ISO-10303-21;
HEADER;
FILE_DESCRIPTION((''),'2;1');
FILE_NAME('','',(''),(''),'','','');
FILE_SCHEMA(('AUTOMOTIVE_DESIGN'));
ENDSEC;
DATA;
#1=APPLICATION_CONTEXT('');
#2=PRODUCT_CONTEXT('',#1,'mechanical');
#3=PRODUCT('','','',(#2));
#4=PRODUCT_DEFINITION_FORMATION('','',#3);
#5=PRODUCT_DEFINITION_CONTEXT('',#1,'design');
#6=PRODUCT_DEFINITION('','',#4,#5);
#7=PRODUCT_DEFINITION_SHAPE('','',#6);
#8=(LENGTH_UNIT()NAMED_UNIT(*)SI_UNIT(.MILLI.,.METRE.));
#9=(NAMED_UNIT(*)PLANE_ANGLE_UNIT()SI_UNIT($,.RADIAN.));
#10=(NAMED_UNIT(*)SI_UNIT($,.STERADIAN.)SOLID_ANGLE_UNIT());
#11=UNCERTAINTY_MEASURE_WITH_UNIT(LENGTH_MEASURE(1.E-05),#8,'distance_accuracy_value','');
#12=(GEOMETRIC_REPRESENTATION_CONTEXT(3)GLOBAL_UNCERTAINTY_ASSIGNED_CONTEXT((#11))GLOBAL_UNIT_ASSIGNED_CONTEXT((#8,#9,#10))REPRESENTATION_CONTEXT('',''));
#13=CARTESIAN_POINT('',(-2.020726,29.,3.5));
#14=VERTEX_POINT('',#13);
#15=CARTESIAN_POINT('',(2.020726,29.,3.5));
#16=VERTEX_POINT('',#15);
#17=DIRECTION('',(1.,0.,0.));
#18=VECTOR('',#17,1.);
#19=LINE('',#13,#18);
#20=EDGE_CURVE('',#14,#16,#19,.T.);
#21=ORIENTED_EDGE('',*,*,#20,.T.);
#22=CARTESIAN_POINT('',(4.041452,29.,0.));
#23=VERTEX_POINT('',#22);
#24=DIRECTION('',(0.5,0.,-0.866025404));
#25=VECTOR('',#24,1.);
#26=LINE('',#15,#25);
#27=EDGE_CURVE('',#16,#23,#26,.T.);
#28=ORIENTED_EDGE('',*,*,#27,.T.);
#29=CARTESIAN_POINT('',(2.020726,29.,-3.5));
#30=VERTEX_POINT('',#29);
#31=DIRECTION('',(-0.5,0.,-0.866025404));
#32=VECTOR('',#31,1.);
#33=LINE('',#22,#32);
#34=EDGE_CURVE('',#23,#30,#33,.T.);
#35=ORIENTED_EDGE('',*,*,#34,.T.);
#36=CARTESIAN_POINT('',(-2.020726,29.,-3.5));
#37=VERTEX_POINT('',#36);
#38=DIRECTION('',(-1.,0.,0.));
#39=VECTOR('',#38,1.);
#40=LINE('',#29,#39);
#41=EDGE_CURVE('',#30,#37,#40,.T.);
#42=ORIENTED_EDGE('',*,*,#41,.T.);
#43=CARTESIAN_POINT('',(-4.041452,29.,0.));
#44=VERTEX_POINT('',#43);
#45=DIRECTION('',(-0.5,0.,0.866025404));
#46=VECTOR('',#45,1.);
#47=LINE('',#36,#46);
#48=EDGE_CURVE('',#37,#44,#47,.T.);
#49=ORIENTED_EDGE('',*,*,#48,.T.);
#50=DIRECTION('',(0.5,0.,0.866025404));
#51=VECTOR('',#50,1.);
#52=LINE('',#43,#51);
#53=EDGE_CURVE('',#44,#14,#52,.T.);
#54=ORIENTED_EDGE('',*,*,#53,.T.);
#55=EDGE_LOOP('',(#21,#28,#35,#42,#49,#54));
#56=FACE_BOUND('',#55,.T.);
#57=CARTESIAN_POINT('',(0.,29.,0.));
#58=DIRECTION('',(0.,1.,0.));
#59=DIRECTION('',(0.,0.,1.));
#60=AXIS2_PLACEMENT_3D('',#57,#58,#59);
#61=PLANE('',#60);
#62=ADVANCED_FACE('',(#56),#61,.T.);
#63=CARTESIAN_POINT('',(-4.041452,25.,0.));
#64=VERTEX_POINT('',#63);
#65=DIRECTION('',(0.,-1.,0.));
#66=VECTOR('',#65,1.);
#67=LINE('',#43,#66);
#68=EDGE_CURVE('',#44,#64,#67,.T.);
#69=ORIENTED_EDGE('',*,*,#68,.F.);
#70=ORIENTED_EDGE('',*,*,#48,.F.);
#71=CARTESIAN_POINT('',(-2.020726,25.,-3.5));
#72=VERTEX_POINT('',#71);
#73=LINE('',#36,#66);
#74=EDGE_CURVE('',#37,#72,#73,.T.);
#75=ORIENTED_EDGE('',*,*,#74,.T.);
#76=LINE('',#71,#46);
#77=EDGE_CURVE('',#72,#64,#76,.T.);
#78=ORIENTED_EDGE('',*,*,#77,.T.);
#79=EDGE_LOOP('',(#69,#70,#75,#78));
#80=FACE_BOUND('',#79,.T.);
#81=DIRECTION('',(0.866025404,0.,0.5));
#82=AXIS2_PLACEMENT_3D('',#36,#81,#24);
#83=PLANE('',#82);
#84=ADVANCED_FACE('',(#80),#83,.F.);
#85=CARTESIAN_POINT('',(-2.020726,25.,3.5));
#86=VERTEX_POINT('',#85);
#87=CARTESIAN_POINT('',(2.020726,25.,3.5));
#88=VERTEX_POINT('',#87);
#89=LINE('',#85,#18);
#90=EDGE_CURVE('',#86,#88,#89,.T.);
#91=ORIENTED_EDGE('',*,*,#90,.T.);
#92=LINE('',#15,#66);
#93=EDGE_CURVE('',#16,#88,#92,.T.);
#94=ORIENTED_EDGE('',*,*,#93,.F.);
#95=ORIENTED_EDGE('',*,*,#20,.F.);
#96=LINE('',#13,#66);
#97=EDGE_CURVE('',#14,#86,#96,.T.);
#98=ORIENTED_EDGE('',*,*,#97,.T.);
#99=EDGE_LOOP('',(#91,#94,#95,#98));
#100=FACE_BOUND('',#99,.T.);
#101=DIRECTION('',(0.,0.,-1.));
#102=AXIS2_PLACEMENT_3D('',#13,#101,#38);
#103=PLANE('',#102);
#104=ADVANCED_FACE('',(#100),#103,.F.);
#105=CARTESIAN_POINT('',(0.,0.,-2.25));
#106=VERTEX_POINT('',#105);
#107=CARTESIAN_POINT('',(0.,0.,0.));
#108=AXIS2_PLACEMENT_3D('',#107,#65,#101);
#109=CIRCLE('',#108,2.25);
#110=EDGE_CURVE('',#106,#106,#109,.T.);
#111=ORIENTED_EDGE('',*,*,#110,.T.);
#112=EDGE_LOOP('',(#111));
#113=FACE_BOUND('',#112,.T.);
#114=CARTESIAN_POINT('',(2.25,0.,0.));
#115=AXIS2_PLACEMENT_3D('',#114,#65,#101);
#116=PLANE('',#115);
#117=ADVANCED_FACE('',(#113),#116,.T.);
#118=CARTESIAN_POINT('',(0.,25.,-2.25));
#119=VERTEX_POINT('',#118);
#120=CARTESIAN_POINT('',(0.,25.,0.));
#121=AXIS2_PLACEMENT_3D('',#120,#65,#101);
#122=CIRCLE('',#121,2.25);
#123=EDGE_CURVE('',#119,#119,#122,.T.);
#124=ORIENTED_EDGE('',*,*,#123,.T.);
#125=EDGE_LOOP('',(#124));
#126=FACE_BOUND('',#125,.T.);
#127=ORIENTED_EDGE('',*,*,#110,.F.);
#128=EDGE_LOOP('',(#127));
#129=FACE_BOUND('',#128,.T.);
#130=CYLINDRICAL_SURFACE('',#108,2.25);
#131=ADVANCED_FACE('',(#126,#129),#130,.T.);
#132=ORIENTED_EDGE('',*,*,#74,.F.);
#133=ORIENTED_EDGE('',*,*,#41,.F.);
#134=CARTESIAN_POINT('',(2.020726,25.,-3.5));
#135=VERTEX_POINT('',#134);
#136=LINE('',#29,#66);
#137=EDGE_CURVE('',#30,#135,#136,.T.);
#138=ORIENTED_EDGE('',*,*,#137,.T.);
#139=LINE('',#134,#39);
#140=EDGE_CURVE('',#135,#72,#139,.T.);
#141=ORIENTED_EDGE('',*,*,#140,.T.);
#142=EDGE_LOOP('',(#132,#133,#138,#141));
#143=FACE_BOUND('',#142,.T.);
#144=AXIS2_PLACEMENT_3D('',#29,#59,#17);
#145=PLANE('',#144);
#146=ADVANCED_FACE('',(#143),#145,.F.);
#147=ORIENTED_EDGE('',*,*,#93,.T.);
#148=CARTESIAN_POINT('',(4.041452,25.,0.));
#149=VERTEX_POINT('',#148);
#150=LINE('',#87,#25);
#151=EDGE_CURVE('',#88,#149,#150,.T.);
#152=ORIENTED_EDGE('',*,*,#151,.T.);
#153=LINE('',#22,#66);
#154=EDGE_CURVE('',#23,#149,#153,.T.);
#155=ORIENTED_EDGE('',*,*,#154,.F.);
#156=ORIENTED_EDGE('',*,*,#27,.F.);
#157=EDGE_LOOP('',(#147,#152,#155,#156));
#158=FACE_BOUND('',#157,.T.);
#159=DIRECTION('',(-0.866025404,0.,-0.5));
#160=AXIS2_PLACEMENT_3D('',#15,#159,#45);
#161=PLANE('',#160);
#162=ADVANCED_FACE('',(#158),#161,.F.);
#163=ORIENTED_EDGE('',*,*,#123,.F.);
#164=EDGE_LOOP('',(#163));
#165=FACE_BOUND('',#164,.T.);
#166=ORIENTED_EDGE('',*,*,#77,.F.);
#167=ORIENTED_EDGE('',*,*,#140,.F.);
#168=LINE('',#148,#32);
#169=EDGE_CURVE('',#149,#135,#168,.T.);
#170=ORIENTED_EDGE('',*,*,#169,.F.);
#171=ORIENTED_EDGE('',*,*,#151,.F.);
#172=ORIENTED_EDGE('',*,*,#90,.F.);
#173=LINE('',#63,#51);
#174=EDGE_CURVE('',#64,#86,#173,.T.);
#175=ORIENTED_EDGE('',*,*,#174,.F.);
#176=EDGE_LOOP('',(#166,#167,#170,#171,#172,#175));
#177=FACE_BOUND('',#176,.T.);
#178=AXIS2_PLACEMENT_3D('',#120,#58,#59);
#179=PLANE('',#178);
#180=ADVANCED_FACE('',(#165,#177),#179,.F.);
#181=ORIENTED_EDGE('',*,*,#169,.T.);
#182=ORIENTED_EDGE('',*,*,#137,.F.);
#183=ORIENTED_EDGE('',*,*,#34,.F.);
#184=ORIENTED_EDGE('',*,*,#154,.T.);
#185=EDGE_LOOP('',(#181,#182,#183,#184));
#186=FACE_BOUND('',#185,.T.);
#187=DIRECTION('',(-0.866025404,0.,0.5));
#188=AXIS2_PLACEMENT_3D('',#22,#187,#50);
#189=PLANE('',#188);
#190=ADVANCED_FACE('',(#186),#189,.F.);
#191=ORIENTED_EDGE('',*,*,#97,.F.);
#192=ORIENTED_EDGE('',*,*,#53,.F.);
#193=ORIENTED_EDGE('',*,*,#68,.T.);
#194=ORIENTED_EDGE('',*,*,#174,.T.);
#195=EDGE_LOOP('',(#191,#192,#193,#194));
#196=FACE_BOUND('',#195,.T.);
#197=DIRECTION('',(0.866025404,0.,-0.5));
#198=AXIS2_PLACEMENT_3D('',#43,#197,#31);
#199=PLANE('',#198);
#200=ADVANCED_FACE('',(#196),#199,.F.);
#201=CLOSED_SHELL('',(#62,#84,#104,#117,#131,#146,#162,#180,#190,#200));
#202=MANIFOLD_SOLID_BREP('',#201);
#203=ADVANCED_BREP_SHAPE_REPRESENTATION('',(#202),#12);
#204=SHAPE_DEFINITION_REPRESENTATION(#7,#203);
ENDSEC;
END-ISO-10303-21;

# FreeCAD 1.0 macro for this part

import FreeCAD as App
import Part
import Sketcher
from FreeCAD import Vector
Q = App.Units.Quantity


def add_polygon(sketch, points):
    """Adds a closed chain of lines whose ends are joined by coincident constraints."""
    first, n = sketch.GeometryCount, len(points)
    for a, b in zip(points, points[1:] + points[:1]):
        sketch.addGeometry(Part.LineSegment(App.Vector(*a, 0), App.Vector(*b, 0)), False)
    for i in range(n):
        sketch.addConstraint(Sketcher.Constraint("Coincident", first + i, 2, first + (i + 1) % n, 1))

doc = App.newDocument("Part")
body = doc.addObject("PartDesign::Body", "Body")

sketch1 = body.newObject("Sketcher::SketchObject", "Sketch")
sketch1.AttachmentSupport = (doc.getObject("XY_Plane"), [""])
sketch1.MapMode = "FlatFace"
add_polygon(sketch1, [(0, 25), (0, 0), (2.2, 0), (2.2, 25)])
sketch1.addConstraint(Sketcher.Constraint("Vertical", 0))
sketch1.addConstraint(Sketcher.Constraint("Horizontal", 1))
sketch1.addConstraint(Sketcher.Constraint("Vertical", 2))
sketch1.addConstraint(Sketcher.Constraint("Horizontal", 3))
sketch1.addConstraint(Sketcher.Constraint("Coincident", 0, 2, -1, 1))
sketch1.addConstraint(Sketcher.Constraint("DistanceY", 0, 2, 0, 1, Q("25 mm")))
sketch1.addConstraint(Sketcher.Constraint("DistanceX", 1, 1, 1, 2, Q("2.25 mm")))
revolution = body.newObject("PartDesign::Revolution", "Revolution")
revolution.Profile = sketch1
revolution.ReferenceAxis = (sketch1, ["V_Axis"])
revolution.Angle = 360

sketch2 = body.newObject("Sketcher::SketchObject", "Sketch001")
sketch2.AttachmentSupport = (doc.getObject("XZ_Plane"), [""])
sketch2.MapMode = "FlatFace"
sketch2.AttachmentOffset = App.Placement(Vector(0, 0, -25), App.Rotation())
add_polygon(sketch2, [(4, 0), (2, -3.5), (-2, -3.5), (-4, 0), (-2, 3.5), (2, 3.5)])
sketch2.addConstraint(Sketcher.Constraint("Horizontal", 1))
sketch2.addConstraint(Sketcher.Constraint("Horizontal", 4))
sketch2.addConstraint(Sketcher.Constraint("Symmetric", 0, 2, 3, 2, -1, 1))
sketch2.addConstraint(Sketcher.Constraint("Symmetric", 2, 2, 5, 2, -1, 1))
sketch2.addConstraint(Sketcher.Constraint("PointOnObject", 2, 2, -1))
sketch2.addConstraint(Sketcher.Constraint("Parallel", 2, 5))
sketch2.addConstraint(Sketcher.Constraint("Vertical", 1, 2, 3, 2))
sketch2.addConstraint(Sketcher.Constraint("Angle", 0, Q("-120 deg")))
sketch2.addConstraint(Sketcher.Constraint("DistanceY", 1, 2, 3, 2, Q("7 mm")))
sketch2.addConstraint(Sketcher.Constraint("DistanceX", 1, 2, 1, 1, Q("4.041452 mm")))
pad1 = body.newObject("PartDesign::Pad", "Pad")
pad1.Profile = sketch2
pad1.Length = 4
pad1.Reversed = True

doc.recompute()
